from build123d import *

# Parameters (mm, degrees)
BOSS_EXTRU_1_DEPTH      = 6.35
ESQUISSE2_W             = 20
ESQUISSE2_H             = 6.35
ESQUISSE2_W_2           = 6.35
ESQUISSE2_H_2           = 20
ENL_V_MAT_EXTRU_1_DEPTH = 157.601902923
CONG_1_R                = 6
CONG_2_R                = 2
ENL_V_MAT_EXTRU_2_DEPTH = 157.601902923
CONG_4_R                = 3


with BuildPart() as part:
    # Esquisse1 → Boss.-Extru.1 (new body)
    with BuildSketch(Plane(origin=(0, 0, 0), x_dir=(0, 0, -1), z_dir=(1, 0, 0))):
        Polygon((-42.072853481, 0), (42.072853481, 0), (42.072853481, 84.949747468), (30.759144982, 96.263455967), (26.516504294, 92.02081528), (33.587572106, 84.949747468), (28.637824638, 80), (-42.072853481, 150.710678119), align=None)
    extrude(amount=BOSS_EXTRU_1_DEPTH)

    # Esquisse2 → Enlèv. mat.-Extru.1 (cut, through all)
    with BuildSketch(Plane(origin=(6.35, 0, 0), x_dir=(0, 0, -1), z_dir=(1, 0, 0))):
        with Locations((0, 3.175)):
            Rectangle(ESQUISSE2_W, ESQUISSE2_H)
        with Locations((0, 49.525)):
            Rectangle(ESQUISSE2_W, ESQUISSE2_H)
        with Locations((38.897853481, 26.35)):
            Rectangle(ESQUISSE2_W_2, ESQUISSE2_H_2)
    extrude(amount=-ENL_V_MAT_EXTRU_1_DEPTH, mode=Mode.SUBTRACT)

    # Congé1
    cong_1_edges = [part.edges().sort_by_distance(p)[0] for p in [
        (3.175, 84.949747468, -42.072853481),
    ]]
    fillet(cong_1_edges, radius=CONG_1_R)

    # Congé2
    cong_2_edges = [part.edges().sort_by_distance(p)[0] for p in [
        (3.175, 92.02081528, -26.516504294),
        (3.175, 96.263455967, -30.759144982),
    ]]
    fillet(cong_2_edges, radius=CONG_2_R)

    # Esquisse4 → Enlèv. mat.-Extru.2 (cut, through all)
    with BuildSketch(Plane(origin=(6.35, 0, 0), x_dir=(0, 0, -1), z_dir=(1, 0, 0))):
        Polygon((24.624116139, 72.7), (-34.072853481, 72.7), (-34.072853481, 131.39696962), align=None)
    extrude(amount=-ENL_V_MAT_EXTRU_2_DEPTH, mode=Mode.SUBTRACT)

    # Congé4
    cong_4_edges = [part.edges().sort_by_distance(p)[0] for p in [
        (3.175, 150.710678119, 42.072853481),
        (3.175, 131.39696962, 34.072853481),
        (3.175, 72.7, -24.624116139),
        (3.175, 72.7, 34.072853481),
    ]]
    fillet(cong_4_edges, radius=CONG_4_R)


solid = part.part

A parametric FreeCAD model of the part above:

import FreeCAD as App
import Part
import Sketcher
from FreeCAD import Vector
Q = App.Units.Quantity


def edges_at(feature, points):
    """Names of the edges that pass closest to the given points."""
    edges = feature.Shape.Edges
    near = lambda p: min(range(len(edges)), key=lambda i: edges[i].distToShape(Part.Vertex(*p))[0])
    return sorted({f"Edge{near(p) + 1}" for p in points})

doc = App.newDocument("Part")
body = doc.addObject("PartDesign::Body", "Body")

# Sketch on YZ plane
sketch1 = doc.addObject("Sketcher::SketchObject", "Sketch")
body.addObject(sketch1)
sketch1.AttachmentSupport = (doc.YZ_Plane, [""])
sketch1.MapMode = "FlatFace"
sketch1.addGeometry([
    Part.LineSegment(Vector(0, 42, 0), Vector(0, -42, 0)),  # 0
    Part.LineSegment(Vector(0, -42, 0), Vector(85, -42, 0)),  # 1
    Part.LineSegment(Vector(85, -42, 0), Vector(96, -31, 0)),  # 2
    Part.LineSegment(Vector(96, -31, 0), Vector(92, -27, 0)),  # 3
    Part.LineSegment(Vector(92, -27, 0), Vector(85, -34, 0)),  # 4
    Part.LineSegment(Vector(85, -34, 0), Vector(80, -29, 0)),  # 5
    Part.LineSegment(Vector(80, -29, 0), Vector(151, 42, 0)),  # 6
    Part.LineSegment(Vector(151, 42, 0), Vector(0, 42, 0)),  # 7
], False)
sketch1.addConstraint([
    Sketcher.Constraint("Coincident", 0, 2, 1, 1),
    Sketcher.Constraint("Coincident", 1, 2, 2, 1),
    Sketcher.Constraint("Coincident", 2, 2, 3, 1),
    Sketcher.Constraint("Coincident", 3, 2, 4, 1),
    Sketcher.Constraint("Coincident", 4, 2, 5, 1),
    Sketcher.Constraint("Coincident", 5, 2, 6, 1),
    Sketcher.Constraint("Coincident", 6, 2, 7, 1),
    Sketcher.Constraint("Coincident", 7, 2, 0, 1),
    Sketcher.Constraint("Vertical", 0),
    Sketcher.Constraint("Horizontal", 1),
    Sketcher.Constraint("Horizontal", 7),
    Sketcher.Constraint("Symmetric", 0, 2, 7, 2, -1, 1),
    Sketcher.Constraint("Perpendicular", 2, 3),
    Sketcher.Constraint("Perpendicular", 3, 4),
    Sketcher.Constraint("Perpendicular", 4, 5),
    Sketcher.Constraint("Perpendicular", 5, 6),
    Sketcher.Constraint("Vertical", 1, 2, 4, 2),
    Sketcher.Constraint("Angle", 2, Q("45 deg")),
    Sketcher.Constraint("Distance", 2, Q("16 mm")),
    Sketcher.Constraint("Distance", 3, Q("6 mm")),
    Sketcher.Constraint("Distance", 5, Q("7 mm")),
    Sketcher.Constraint("Distance", 6, Q("100 mm")),
    Sketcher.Constraint("DistanceX", -1, 1, 5, 2, Q("80 mm")),
])
pad1 = doc.addObject("PartDesign::Pad", "Pad")
body.addObject(pad1)
pad1.Profile = sketch1
pad1.Length = 6.35

# Sketch on YZ plane
sketch2 = doc.addObject("Sketcher::SketchObject", "Sketch001")
body.addObject(sketch2)
sketch2.AttachmentSupport = (doc.YZ_Plane, [""])
sketch2.MapMode = "FlatFace"
sketch2.AttachmentOffset = App.Placement(Vector(0, 0, 6.35), App.Rotation())
sketch2.addGeometry([
    Part.LineSegment(Vector(6, 10, 0), Vector(0, 10, 0)),  # 0
    Part.LineSegment(Vector(0, 10, 0), Vector(0, -10, 0)),  # 1
    Part.LineSegment(Vector(0, -10, 0), Vector(6, -10, 0)),  # 2
    Part.LineSegment(Vector(6, -10, 0), Vector(6, 10, 0)),  # 3
    Part.LineSegment(Vector(53, 10, 0), Vector(46, 10, 0)),  # 4
    Part.LineSegment(Vector(46, 10, 0), Vector(46, -10, 0)),  # 5
    Part.LineSegment(Vector(46, -10, 0), Vector(53, -10, 0)),  # 6
    Part.LineSegment(Vector(53, -10, 0), Vector(53, 10, 0)),  # 7
    Part.LineSegment(Vector(36, -36, 0), Vector(16, -36, 0)),  # 8
    Part.LineSegment(Vector(16, -36, 0), Vector(16, -42, 0)),  # 9
    Part.LineSegment(Vector(16, -42, 0), Vector(36, -42, 0)),  # 10
    Part.LineSegment(Vector(36, -42, 0), Vector(36, -36, 0)),  # 11
], False)
sketch2.addConstraint([
    Sketcher.Constraint("Coincident", 0, 2, 1, 1),
    Sketcher.Constraint("Coincident", 1, 2, 2, 1),
    Sketcher.Constraint("Coincident", 2, 2, 3, 1),
    Sketcher.Constraint("Coincident", 3, 2, 0, 1),
    Sketcher.Constraint("Coincident", 4, 2, 5, 1),
    Sketcher.Constraint("Coincident", 5, 2, 6, 1),
    Sketcher.Constraint("Coincident", 6, 2, 7, 1),
    Sketcher.Constraint("Coincident", 7, 2, 4, 1),
    Sketcher.Constraint("Coincident", 8, 2, 9, 1),
    Sketcher.Constraint("Coincident", 9, 2, 10, 1),
    Sketcher.Constraint("Coincident", 10, 2, 11, 1),
    Sketcher.Constraint("Coincident", 11, 2, 8, 1),
    Sketcher.Constraint("Horizontal", 0),
    Sketcher.Constraint("Vertical", 1),
    Sketcher.Constraint("Horizontal", 2),
    Sketcher.Constraint("Vertical", 3),
    Sketcher.Constraint("Horizontal", 4),
    Sketcher.Constraint("Vertical", 5),
    Sketcher.Constraint("Horizontal", 6),
    Sketcher.Constraint("Vertical", 7),
    Sketcher.Constraint("Horizontal", 8),
    Sketcher.Constraint("Vertical", 9),
    Sketcher.Constraint("Horizontal", 10),
    Sketcher.Constraint("Vertical", 11),
    Sketcher.Constraint("Symmetric", 0, 2, 1, 2, -1, 1),
    Sketcher.Constraint("Horizontal", 3, 2, 4, 2),
    Sketcher.Constraint("Horizontal", 2, 2, 5, 2),
    Sketcher.Constraint("Equal", 2, 4),
    Sketcher.Constraint("Equal", 10, 1),
    Sketcher.Constraint("Equal", 6, 9),
    Sketcher.Constraint("DistanceX", 8, 2, 8, 1, Q("20 mm")),
    Sketcher.Constraint("DistanceX", 3, 2, 4, 2, Q("40 mm")),
    Sketcher.Constraint("DistanceX", 2, 2, 8, 2, Q("10 mm")),
    Sketcher.Constraint("DistanceX", 0, 2, 0, 1, Q("6.35 mm")),
    Sketcher.Constraint("DistanceY", 8, 2, -1, 1, Q("35.722853 mm")),
])
pocket1 = doc.addObject("PartDesign::Pocket", "Pocket")
body.addObject(pocket1)
pocket1.Profile = sketch2
pocket1.Type = "ThroughAll"
doc.recompute()

fillet = doc.addObject("PartDesign::Fillet", "Fillet")
body.addObject(fillet)
fillet.Base = (pocket1, edges_at(pocket1, [(3.175, 84.95, -42.073)]))
fillet.Radius = 6
doc.recompute()

fillet2 = doc.addObject("PartDesign::Fillet", "Fillet001")
body.addObject(fillet2)
fillet2.Base = (fillet, edges_at(fillet, [(3.175, 92.021, -26.517), (3.175, 96.263, -30.759)]))
fillet2.Radius = 2

# Sketch on YZ plane
sketch3 = doc.addObject("Sketcher::SketchObject", "Sketch002")
body.addObject(sketch3)
sketch3.AttachmentSupport = (doc.YZ_Plane, [""])
sketch3.MapMode = "FlatFace"
sketch3.AttachmentOffset = App.Placement(Vector(0, 0, 6.35), App.Rotation())
sketch3.addGeometry([
    Part.LineSegment(Vector(73, 34, 0), Vector(73, -25, 0)),
    Part.LineSegment(Vector(73, -25, 0), Vector(131, 34, 0)),
    Part.LineSegment(Vector(131, 34, 0), Vector(73, 34, 0)),
], False)
sketch3.addConstraint([
    Sketcher.Constraint("Coincident", 0, 2, 1, 1),
    Sketcher.Constraint("Coincident", 1, 2, 2, 1),
    Sketcher.Constraint("Coincident", 2, 2, 0, 1),
    Sketcher.Constraint("Vertical", 0),
    Sketcher.Constraint("Horizontal", 2),
    Sketcher.Constraint("Equal", 2, 0),
    Sketcher.Constraint("DistanceX", -1, 1, 0, 2, Q("72.7 mm")),
    Sketcher.Constraint("DistanceX", 2, 2, 2, 1, Q("58.69697 mm")),
    Sketcher.Constraint("DistanceY", 0, 2, -1, 1, Q("24.624116 mm")),
])
pocket2 = doc.addObject("PartDesign::Pocket", "Pocket001")
body.addObject(pocket2)
pocket2.Profile = sketch3
pocket2.Type = "ThroughAll"
doc.recompute()

fillet3 = doc.addObject("PartDesign::Fillet", "Fillet002")
body.addObject(fillet3)
fillet3.Base = (pocket2, edges_at(pocket2, [
    (3.175, 150.711, 42.073),
    (3.175, 131.397, 34.073),
    (3.175, 72.7, -24.624),
    (3.175, 72.7, 34.073),
]))
fillet3.Radius = 3

doc.recompute()
